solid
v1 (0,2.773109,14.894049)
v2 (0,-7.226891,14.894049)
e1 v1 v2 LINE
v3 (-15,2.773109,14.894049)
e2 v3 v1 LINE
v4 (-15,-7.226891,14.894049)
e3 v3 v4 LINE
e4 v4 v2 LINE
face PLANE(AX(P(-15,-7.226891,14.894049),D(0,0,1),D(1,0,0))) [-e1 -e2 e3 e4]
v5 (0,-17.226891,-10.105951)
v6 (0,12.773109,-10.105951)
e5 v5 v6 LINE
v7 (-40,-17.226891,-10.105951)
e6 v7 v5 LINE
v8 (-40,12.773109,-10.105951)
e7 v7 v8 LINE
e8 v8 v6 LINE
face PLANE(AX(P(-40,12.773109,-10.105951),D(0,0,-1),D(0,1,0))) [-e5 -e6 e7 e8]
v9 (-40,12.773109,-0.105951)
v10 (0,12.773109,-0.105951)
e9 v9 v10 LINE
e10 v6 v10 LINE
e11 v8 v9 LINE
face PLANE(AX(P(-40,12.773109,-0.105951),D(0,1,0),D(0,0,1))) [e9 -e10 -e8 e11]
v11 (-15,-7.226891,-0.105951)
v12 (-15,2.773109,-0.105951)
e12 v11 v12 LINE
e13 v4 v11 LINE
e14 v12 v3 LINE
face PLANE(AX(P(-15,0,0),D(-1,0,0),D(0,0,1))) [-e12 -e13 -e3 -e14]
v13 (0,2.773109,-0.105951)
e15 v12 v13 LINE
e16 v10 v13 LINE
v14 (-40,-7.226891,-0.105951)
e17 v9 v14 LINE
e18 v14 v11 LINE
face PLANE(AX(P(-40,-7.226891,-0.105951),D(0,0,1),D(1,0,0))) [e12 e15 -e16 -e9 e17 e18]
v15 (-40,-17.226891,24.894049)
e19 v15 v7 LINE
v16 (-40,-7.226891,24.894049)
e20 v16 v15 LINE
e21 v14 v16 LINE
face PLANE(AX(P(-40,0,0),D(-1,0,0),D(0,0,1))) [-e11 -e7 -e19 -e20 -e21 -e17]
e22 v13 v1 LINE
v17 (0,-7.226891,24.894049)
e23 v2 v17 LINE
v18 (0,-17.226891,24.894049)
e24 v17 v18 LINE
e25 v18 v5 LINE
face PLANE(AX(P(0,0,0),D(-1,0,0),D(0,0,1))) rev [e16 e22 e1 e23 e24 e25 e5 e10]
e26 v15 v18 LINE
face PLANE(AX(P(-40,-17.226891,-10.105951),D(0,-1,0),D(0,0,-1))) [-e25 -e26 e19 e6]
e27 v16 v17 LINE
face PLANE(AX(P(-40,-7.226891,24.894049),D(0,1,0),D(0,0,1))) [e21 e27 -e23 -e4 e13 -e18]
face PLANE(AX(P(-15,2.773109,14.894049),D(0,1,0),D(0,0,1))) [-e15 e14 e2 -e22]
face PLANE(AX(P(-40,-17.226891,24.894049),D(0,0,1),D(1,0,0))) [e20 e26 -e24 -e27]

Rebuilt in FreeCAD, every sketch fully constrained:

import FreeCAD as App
import Part
import Sketcher


def add_polygon(sketch, points):
    """Adds a closed chain of lines whose ends are joined by coincident constraints."""
    first, n = sketch.GeometryCount, len(points)
    for a, b in zip(points, points[1:] + points[:1]):
        sketch.addGeometry(Part.LineSegment(App.Vector(*a, 0), App.Vector(*b, 0)), False)
    for i in range(n):
        sketch.addConstraint(Sketcher.Constraint("Coincident", first + i, 2, first + (i + 1) % n, 1))

doc = App.newDocument("Part")
body = doc.addObject("PartDesign::Body", "Body")

# Sketch on YZ plane
sketch1 = body.newObject("Sketcher::SketchObject", "Sketch")
sketch1.AttachmentSupport = (doc.getObject("YZ_Plane"), [""])
sketch1.MapMode = "FlatFace"
add_polygon(sketch1, [(-17.226891, -10.105951), (12.773109, -10.105951), (12.773109, -0.105951), (-7.226891, -0.105951), (-7.226891, 24.894049), (-17.226891, 24.894049)])  # lines 0-5
sketch1.addConstraint([
    Sketcher.Constraint("Horizontal", 0),
    Sketcher.Constraint("Vertical", 1),
    Sketcher.Constraint("Horizontal", 2),
    Sketcher.Constraint("Vertical", 3),
    Sketcher.Constraint("Horizontal", 4),
    Sketcher.Constraint("Vertical", 5),
    Sketcher.Constraint("Equal", 4, 1),
    Sketcher.Constraint("DistanceX", 0, 1, 0, 2, 30.0),
    Sketcher.Constraint("DistanceX", 2, 2, 2, 1, 20.0),
    Sketcher.Constraint("DistanceY", 3, 1, 3, 2, 25.0),
    Sketcher.Constraint("DistanceX", -1, 1, 0, 2, 12.773109),
    Sketcher.Constraint("DistanceY", 0, 2, -1, 1, 10.105951),
])
pad1 = body.newObject("PartDesign::Pad", "Pad")
pad1.Profile = sketch1
pad1.Length = 40
pad1.Reversed = True

# Sketch on YZ plane
sketch2 = body.newObject("Sketcher::SketchObject", "Sketch001")
sketch2.AttachmentSupport = (doc.getObject("YZ_Plane"), [""])
sketch2.MapMode = "FlatFace"
add_polygon(sketch2, [(2.773109, 14.894049), (-7.226891, 14.894049), (-7.226891, -0.105951), (2.773109, -0.105951)])  # lines 0-3
sketch2.addConstraint([
    Sketcher.Constraint("Horizontal", 0),
    Sketcher.Constraint("Vertical", 1),
    Sketcher.Constraint("Horizontal", 2),
    Sketcher.Constraint("Vertical", 3),
    Sketcher.Constraint("DistanceX", 0, 2, 0, 1, 10.0),
    Sketcher.Constraint("DistanceY", 1, 2, 1, 1, 15.0),
    Sketcher.Constraint("DistanceX", 0, 2, -1, 1, 7.226891),
    Sketcher.Constraint("DistanceY", -1, 1, 0, 2, 14.894049),
])
pad2 = body.newObject("PartDesign::Pad", "Pad001")
pad2.Profile = sketch2
pad2.Length = 15
pad2.Reversed = True

doc.recompute()
